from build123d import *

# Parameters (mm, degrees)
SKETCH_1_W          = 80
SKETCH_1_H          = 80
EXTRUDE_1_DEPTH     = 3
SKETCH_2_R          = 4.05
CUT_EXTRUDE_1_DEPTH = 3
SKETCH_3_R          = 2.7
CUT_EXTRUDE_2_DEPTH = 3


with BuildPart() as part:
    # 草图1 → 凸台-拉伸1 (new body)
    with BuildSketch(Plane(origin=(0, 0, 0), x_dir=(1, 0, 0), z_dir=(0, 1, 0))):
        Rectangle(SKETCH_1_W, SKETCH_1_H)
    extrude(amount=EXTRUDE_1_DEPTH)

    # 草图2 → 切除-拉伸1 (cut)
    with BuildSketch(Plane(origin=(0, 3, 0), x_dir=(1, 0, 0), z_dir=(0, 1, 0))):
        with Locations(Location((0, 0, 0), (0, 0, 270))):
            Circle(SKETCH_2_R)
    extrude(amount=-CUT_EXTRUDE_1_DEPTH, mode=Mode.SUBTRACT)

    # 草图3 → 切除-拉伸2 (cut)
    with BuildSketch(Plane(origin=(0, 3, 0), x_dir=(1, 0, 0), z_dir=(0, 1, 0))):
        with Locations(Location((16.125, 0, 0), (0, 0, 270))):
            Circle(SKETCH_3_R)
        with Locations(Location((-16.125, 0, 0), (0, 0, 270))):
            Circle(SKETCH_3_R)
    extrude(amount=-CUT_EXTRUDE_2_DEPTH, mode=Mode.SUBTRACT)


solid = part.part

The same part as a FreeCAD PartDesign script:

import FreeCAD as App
import Part
import Sketcher
from FreeCAD import Vector
Q = App.Units.Quantity


def add_polygon(sketch, points):
    """Adds a closed chain of lines whose ends are joined by coincident constraints."""
    first, n = sketch.GeometryCount, len(points)
    for a, b in zip(points, points[1:] + points[:1]):
        sketch.addGeometry(Part.LineSegment(App.Vector(*a, 0), App.Vector(*b, 0)), False)
    for i in range(n):
        sketch.addConstraint(Sketcher.Constraint("Coincident", first + i, 2, first + (i + 1) % n, 1))

doc = App.newDocument("Part")
body = doc.addObject("PartDesign::Body", "Body")

sketch1 = body.newObject("Sketcher::SketchObject", "Sketch")
sketch1.AttachmentSupport = (doc.getObject("XZ_Plane"), [""])
sketch1.MapMode = "FlatFace"
add_polygon(sketch1, [(-40, -40), (-40, 40), (40, 40), (40, -40)])
sketch1.addConstraint(Sketcher.Constraint("Vertical", 0))
sketch1.addConstraint(Sketcher.Constraint("Horizontal", 1))
sketch1.addConstraint(Sketcher.Constraint("Vertical", 2))
sketch1.addConstraint(Sketcher.Constraint("Horizontal", 3))
sketch1.addConstraint(Sketcher.Constraint("Symmetric", 0, 2, 2, 2, -1, 1))
sketch1.addConstraint(Sketcher.Constraint("Equal", 3, 0))
sketch1.addConstraint(Sketcher.Constraint("DistanceX", 1, 1, 1, 2, Q("80 mm")))
pad1 = body.newObject("PartDesign::Pad", "Pad")
pad1.Profile = sketch1
pad1.Length = 3
pad1.Reversed = True

sketch2 = body.newObject("Sketcher::SketchObject", "Sketch001")
sketch2.AttachmentSupport = (doc.getObject("XZ_Plane"), [""])
sketch2.MapMode = "FlatFace"
sketch2.AttachmentOffset = App.Placement(Vector(0, 0, -3), App.Rotation())
sketch2.addGeometry(Part.Circle(Vector(0, 0, 0), Vector(0, 0, 1), 4), False)
sketch2.addConstraint(Sketcher.Constraint("Coincident", 0, 3, -1, 1))
sketch2.addConstraint(Sketcher.Constraint("Diameter", 0, Q("8.1 mm")))
pocket1 = body.newObject("PartDesign::Pocket", "Pocket")
pocket1.Profile = sketch2
pocket1.Length = 3
pocket1.Reversed = True

sketch3 = body.newObject("Sketcher::SketchObject", "Sketch002")
sketch3.AttachmentSupport = (doc.getObject("XZ_Plane"), [""])
sketch3.MapMode = "FlatFace"
sketch3.AttachmentOffset = App.Placement(Vector(0, 0, -3), App.Rotation())
sketch3.addGeometry(Part.Circle(Vector(16.1, 0, 0), Vector(0, 0, 1), 2.7), False)
sketch3.addGeometry(Part.Circle(Vector(-16.1, 0, 0), Vector(0, 0, 1), 2.7), False)
sketch3.addConstraint(Sketcher.Constraint("Equal", 0, 1))
sketch3.addConstraint(Sketcher.Constraint("Symmetric", 0, 3, 1, 3, -1, 1))
sketch3.addConstraint(Sketcher.Constraint("PointOnObject", 0, 3, -1))
sketch3.addConstraint(Sketcher.Constraint("Diameter", 0, Q("5.4 mm")))
sketch3.addConstraint(Sketcher.Constraint("DistanceX", 1, 3, 0, 3, Q("32.25 mm")))
pocket2 = body.newObject("PartDesign::Pocket", "Pocket001")
pocket2.Profile = sketch3
pocket2.Length = 3
pocket2.Reversed = True

doc.recompute()
